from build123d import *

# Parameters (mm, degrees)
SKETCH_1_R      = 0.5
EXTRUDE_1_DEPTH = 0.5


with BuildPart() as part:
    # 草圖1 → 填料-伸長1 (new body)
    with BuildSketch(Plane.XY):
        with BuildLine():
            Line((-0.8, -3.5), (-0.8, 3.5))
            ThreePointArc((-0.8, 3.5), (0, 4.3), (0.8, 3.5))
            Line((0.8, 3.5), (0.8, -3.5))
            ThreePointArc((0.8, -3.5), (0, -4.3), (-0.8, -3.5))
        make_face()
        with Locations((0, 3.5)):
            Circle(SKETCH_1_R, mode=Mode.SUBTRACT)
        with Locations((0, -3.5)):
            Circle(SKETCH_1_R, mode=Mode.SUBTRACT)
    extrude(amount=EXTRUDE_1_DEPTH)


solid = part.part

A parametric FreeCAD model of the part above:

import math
import FreeCAD as App
import Part
import Sketcher
from FreeCAD import Vector

doc = App.newDocument("Part")
params = doc.addObject("Spreadsheet::Sheet", "Params")
for row, (alias, value) in enumerate([
    ("sketch1_diameter", "1 mm"),
    ("sketch1_radius", "0.8 mm"),
    ("sketch1_height", "7 mm"),
    ("pad1_length", "0.5 mm"),
], start=1):
    params.set(f"A{row}", alias)
    params.set(f"B{row}", "=" + value)
    params.setAlias(f"B{row}", alias)

body = doc.addObject("PartDesign::Body", "Body")

# Sketch on XY plane
sketch1 = doc.addObject("Sketcher::SketchObject", "Sketch")
body.addObject(sketch1)
sketch1.AttachmentSupport = (doc.XY_Plane, [""])
sketch1.MapMode = "FlatFace"
sketch1.addGeometry([
    Part.LineSegment(Vector(-0.8, 3.5, 0), Vector(-0.8, -3.5, 0)),  # 0
    Part.ArcOfCircle(Part.Circle(Vector(0, -3.5, 0), Vector(0, 0, 1), 0.8), math.radians(180), math.radians(360)),  # 1
    Part.LineSegment(Vector(0.8, -3.5, 0), Vector(0.8, 3.5, 0)),  # 2
    Part.ArcOfCircle(Part.Circle(Vector(0, 3.5, 0), Vector(0, 0, 1), 0.8), math.radians(0), math.radians(180)),  # 3
    Part.Circle(Vector(0, -3.5, 0), Vector(0, 0, 1), 0.5),  # 4
    Part.Circle(Vector(0, 3.5, 0), Vector(0, 0, 1), 0.5),  # 5
], False)
sketch1.addConstraint([
    Sketcher.Constraint("Tangent", 0, 2, 1, 1),
    Sketcher.Constraint("Tangent", 1, 2, 2, 1),
    Sketcher.Constraint("Tangent", 2, 2, 3, 1),
    Sketcher.Constraint("Tangent", 3, 2, 0, 1),
    Sketcher.Constraint("Vertical", 0),
    Sketcher.Constraint("Vertical", 2),
    Sketcher.Constraint("Coincident", 4, 3, 1, 3),
    Sketcher.Constraint("Coincident", 5, 3, 3, 3),
    Sketcher.Constraint("Equal", 4, 5),
    Sketcher.Constraint("Symmetric", 1, 3, 3, 3, -1, 1),
    Sketcher.Constraint("Diameter", 4, 1.0),
    Sketcher.Constraint("Radius", 1, 0.8),
    Sketcher.Constraint("DistanceY", 0, 2, 0, 1, 7.0),
])
sketch1.setExpression("Constraints[10]", "Params.sketch1_diameter")
sketch1.setExpression("Constraints[11]", "Params.sketch1_radius")
sketch1.setExpression("Constraints[12]", "Params.sketch1_height")
pad1 = doc.addObject("PartDesign::Pad", "Pad")
body.addObject(pad1)
pad1.Profile = sketch1
pad1.setExpression("Length", "Params.pad1_length")

doc.recompute()
